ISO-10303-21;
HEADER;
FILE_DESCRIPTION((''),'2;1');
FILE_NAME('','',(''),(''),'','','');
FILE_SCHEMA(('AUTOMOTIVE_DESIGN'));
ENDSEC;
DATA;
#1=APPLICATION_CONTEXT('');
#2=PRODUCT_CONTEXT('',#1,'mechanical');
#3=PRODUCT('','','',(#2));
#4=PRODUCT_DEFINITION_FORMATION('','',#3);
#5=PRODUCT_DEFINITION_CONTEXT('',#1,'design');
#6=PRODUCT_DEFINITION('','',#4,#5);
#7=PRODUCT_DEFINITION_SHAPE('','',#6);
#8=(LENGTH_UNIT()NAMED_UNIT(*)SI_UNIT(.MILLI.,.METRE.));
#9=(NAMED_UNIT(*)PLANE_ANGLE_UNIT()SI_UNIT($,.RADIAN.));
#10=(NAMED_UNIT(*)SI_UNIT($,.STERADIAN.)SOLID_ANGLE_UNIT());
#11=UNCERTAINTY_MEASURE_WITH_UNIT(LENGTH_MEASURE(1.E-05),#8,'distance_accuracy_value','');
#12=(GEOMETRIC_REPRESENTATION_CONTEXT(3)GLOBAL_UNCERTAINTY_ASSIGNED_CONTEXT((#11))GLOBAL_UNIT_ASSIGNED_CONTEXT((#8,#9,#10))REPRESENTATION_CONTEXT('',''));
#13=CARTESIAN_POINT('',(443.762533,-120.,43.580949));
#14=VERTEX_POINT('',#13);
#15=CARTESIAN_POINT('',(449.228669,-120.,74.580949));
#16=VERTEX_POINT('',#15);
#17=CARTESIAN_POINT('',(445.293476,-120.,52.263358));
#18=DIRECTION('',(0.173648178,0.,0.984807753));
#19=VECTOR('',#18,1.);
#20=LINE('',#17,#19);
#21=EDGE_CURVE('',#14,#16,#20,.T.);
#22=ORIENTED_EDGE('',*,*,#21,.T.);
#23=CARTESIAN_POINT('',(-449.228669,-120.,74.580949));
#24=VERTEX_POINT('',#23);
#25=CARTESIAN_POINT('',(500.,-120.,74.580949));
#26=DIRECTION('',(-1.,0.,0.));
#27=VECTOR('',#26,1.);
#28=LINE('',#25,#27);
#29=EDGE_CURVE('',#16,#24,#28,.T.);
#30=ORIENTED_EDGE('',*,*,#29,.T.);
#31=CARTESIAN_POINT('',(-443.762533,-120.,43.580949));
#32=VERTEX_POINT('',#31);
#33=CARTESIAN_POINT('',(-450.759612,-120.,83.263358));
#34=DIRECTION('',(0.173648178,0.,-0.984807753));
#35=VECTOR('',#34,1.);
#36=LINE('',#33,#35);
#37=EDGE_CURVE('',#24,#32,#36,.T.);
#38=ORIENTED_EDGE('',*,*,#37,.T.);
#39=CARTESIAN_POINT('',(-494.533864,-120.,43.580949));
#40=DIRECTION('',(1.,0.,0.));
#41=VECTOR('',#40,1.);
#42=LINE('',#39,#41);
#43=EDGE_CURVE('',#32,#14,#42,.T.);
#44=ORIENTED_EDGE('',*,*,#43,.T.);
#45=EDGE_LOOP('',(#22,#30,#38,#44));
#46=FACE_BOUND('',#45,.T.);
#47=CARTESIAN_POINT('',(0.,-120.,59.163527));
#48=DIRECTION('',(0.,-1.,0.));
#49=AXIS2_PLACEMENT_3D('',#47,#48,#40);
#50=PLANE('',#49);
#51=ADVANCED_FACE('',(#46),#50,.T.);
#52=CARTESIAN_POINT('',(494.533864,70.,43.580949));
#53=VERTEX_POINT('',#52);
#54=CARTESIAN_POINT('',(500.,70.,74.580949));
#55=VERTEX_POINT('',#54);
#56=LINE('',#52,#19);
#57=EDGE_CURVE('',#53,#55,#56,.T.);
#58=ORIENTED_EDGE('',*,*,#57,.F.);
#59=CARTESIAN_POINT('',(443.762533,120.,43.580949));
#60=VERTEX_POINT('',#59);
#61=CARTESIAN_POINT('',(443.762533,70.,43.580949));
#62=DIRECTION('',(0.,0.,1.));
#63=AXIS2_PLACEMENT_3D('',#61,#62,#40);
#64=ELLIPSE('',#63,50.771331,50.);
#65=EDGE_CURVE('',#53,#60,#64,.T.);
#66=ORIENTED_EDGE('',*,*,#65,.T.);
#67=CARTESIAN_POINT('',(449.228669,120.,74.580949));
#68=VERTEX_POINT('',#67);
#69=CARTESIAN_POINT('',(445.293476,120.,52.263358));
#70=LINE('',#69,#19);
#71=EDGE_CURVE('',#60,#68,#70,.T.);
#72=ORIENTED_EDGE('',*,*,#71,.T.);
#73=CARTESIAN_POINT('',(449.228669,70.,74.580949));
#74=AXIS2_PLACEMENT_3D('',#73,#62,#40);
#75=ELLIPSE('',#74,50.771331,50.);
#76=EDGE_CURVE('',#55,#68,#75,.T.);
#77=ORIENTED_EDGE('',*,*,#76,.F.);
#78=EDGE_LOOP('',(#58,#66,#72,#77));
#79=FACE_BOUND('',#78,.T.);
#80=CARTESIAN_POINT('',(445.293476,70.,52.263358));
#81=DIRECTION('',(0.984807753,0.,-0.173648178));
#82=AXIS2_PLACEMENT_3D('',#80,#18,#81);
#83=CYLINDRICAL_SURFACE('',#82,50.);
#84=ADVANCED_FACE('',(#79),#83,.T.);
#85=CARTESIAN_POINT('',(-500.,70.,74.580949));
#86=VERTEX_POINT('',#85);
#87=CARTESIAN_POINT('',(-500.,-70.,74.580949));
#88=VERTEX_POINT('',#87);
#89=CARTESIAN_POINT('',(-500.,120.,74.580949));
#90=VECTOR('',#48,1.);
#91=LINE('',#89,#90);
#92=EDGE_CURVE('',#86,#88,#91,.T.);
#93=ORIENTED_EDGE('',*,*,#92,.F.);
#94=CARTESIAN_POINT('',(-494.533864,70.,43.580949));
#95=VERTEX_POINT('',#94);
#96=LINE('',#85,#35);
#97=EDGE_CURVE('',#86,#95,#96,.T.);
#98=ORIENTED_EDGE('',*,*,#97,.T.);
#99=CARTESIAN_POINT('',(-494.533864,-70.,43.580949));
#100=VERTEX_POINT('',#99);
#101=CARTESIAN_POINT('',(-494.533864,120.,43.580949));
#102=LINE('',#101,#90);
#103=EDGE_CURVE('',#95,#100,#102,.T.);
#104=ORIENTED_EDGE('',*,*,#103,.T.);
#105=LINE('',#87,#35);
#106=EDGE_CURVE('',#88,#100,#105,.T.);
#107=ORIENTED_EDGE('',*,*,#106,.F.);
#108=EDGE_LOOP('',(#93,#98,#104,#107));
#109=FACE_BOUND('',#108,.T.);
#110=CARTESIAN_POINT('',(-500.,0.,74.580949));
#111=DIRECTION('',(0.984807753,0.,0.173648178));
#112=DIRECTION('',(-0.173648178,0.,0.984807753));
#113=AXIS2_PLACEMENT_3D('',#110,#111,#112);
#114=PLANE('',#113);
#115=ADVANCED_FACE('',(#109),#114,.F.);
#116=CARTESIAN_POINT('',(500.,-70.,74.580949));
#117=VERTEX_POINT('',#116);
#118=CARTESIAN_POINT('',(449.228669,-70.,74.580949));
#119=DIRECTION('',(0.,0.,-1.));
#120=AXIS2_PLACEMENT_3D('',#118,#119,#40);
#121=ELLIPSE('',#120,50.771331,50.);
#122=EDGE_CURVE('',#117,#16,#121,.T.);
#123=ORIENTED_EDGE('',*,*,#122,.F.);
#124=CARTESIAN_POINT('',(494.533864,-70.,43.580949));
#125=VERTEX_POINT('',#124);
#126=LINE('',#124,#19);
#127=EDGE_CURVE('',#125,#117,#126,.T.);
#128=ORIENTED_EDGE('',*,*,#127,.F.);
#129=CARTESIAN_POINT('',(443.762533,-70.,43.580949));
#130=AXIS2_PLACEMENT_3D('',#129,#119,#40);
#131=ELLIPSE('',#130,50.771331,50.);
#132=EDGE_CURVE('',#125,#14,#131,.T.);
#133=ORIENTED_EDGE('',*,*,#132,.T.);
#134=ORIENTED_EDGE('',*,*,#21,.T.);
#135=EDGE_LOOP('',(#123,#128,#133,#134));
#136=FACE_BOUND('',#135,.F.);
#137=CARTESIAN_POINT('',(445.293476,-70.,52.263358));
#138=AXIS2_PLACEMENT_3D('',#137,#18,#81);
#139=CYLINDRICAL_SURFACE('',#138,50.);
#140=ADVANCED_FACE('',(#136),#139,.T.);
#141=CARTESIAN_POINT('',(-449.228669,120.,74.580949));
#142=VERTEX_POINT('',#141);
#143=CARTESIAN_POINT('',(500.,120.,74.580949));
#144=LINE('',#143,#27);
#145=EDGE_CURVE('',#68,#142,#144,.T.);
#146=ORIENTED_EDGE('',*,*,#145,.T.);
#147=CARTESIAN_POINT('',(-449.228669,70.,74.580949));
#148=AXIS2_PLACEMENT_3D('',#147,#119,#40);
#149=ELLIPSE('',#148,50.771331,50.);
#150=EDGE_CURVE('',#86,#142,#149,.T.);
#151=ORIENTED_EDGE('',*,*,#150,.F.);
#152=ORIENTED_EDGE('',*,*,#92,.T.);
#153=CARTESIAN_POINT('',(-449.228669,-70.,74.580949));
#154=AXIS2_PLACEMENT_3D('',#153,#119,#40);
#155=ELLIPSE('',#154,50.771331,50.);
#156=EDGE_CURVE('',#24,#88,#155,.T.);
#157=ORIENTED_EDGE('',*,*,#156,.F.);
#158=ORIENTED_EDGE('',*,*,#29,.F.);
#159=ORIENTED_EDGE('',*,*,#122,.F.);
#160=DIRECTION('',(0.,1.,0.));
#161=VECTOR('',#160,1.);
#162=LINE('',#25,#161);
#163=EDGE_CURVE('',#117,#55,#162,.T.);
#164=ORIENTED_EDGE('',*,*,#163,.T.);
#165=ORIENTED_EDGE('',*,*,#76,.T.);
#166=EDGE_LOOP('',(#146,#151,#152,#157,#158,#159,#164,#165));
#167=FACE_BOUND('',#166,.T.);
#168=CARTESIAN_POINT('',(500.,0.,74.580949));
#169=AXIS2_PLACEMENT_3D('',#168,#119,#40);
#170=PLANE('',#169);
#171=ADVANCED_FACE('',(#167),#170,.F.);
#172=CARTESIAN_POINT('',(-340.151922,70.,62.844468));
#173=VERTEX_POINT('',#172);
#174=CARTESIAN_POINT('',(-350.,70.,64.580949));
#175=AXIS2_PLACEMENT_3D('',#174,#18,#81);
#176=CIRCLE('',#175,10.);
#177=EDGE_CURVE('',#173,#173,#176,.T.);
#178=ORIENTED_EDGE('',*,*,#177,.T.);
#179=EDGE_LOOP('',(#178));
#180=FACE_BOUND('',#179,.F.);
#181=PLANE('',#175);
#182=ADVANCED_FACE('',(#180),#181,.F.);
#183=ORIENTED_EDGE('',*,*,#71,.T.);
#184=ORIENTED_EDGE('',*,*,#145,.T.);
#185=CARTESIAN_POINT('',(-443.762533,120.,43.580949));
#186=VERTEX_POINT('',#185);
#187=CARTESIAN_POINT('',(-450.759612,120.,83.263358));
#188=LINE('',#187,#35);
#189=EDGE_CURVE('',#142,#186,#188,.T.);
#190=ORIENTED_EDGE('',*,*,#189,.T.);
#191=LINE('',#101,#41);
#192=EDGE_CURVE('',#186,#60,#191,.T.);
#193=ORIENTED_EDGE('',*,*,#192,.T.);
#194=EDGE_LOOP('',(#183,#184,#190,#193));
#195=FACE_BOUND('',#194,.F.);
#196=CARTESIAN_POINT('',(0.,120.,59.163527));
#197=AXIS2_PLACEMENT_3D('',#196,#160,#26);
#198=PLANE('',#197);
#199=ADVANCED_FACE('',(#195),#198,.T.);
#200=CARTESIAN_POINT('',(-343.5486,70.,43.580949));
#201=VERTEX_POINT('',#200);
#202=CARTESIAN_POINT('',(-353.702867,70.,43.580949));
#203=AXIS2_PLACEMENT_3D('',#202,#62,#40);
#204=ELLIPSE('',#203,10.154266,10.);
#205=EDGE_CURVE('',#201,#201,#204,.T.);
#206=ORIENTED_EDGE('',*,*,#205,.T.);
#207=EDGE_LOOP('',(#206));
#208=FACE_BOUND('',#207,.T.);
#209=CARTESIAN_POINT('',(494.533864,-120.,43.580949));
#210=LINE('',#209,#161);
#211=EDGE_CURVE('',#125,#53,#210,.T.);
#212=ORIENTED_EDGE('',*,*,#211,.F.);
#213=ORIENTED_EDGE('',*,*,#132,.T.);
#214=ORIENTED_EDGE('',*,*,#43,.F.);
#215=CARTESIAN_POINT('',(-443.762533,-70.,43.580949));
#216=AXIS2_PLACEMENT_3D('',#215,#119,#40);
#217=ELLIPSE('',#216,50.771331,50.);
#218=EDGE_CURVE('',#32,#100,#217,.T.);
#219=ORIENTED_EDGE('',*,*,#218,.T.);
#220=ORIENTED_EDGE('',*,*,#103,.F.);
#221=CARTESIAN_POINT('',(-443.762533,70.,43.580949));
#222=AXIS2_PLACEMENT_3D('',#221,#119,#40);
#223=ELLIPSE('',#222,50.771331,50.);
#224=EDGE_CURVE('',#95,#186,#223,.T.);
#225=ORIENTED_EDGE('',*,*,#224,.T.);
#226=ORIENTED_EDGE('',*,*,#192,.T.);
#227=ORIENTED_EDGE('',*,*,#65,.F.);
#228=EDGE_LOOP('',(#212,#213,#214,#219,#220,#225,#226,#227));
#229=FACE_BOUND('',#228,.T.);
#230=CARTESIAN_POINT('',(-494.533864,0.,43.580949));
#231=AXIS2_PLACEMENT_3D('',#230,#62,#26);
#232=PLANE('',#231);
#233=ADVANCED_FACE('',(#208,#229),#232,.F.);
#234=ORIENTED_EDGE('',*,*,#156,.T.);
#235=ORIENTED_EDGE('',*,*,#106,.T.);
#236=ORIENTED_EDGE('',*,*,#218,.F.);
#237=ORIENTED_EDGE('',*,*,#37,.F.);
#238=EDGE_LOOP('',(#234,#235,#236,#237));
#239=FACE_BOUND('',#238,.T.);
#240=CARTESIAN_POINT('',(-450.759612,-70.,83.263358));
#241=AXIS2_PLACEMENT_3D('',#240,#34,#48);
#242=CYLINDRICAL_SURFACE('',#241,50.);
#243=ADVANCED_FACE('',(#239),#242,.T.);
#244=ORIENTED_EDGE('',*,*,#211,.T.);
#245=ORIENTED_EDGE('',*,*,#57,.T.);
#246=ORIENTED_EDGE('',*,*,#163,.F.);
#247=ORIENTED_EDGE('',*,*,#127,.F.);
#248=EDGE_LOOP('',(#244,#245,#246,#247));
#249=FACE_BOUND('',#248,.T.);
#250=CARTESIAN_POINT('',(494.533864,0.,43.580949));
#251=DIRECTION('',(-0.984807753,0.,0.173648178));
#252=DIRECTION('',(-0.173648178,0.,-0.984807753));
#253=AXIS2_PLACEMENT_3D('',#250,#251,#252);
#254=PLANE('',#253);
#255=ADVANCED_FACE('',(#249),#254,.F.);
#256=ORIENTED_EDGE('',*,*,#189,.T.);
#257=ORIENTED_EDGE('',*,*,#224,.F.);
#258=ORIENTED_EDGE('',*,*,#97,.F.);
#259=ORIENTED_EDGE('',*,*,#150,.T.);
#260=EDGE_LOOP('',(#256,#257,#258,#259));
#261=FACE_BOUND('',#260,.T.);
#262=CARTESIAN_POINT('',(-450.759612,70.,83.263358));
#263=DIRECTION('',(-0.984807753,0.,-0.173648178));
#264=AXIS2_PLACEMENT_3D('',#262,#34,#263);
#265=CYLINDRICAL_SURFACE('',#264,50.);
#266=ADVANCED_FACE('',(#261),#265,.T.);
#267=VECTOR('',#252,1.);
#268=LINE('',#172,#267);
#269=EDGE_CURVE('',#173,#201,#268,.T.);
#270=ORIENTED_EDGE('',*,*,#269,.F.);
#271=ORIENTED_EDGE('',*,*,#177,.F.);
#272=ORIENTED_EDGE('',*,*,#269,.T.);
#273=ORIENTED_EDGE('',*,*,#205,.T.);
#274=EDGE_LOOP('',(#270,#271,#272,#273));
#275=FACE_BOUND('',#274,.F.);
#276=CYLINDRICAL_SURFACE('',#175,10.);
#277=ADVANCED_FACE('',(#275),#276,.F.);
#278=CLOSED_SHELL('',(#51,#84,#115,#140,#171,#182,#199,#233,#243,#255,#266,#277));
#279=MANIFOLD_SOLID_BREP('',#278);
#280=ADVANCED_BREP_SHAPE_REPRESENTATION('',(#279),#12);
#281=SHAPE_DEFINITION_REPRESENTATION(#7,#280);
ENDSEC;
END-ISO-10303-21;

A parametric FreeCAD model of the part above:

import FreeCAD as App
import Part
import Sketcher
Q = App.Units.Quantity


def edges_at(feature, points):
    """Names of the edges that pass closest to the given points."""
    edges = feature.Shape.Edges
    near = lambda p: min(range(len(edges)), key=lambda i: edges[i].distToShape(Part.Vertex(*p))[0])
    return sorted({f"Edge{near(p) + 1}" for p in points})

doc = App.newDocument("Part")
body = doc.addObject("PartDesign::Body", "Body")

# Sketch on XZ plane
sketch1 = body.newObject("Sketcher::SketchObject", "Sketch")
sketch1.AttachmentSupport = (doc.getObject("XZ_Plane"), [""])
sketch1.MapMode = "FlatFace"
sketch1.addGeometry([
    Part.LineSegment(App.Vector(500, 75, 0), App.Vector(-500, 75, 0)),
    Part.LineSegment(App.Vector(-500, 75, 0), App.Vector(-495, 44, 0)),
    Part.LineSegment(App.Vector(-495, 44, 0), App.Vector(495, 44, 0)),
    Part.LineSegment(App.Vector(495, 44, 0), App.Vector(500, 75, 0)),
], False)
sketch1.addConstraint([
    Sketcher.Constraint("Coincident", 0, 2, 1, 1),
    Sketcher.Constraint("Coincident", 1, 2, 2, 1),
    Sketcher.Constraint("Coincident", 2, 2, 3, 1),
    Sketcher.Constraint("Coincident", 3, 2, 0, 1),
    Sketcher.Constraint("Horizontal", 0),
    Sketcher.Constraint("Horizontal", 2),
    Sketcher.Constraint("Equal", 1, 3),
    Sketcher.Constraint("DistanceX", 0, 2, 0, 1, Q("1000 mm")),
    Sketcher.Constraint("Angle", 1, Q("-80 deg")),
    Sketcher.Constraint("DistanceX", 0, 2, -1, 1, Q("500 mm")),
    Sketcher.Constraint("DistanceY", 1, 2, 0, 2, Q("31 mm")),
    Sketcher.Constraint("DistanceY", -1, 1, 0, 2, Q("74.580949 mm")),
])
pad1 = body.newObject("PartDesign::Pad", "Pad")
pad1.Profile = sketch1
pad1.Length = 120
body2 = doc.addObject("PartDesign::Body", "Body001")
doc.recompute()

body2.BaseFeature = body
doc.recompute()

mirroring = doc.addObject("Part::Mirroring", "Mirroring")
mirroring.Source = body
mirroring.Base = App.Vector(0, 0, 0)
mirroring.Normal = App.Vector(0, -1, 0)
body3 = doc.addObject("PartDesign::Body", "Body002")
body3.BaseFeature = mirroring
boolean = body2.newObject("PartDesign::Boolean", "Boolean")
boolean.Type = "Fuse"
boolean.addObjects([body3])
doc.recompute()

fillet = body2.newObject("PartDesign::Fillet", "Fillet")
fillet.Base = (boolean, edges_at(boolean, [(497.267, -120, 59.081)]))
fillet.Radius = 50
doc.recompute()

fillet2 = body2.newObject("PartDesign::Fillet", "Fillet001")
fillet2.Base = (fillet, edges_at(fillet, [(497.267, 120, 59.081)]))
fillet2.Radius = 50
doc.recompute()

fillet3 = body2.newObject("PartDesign::Fillet", "Fillet002")
fillet3.Base = (fillet2, edges_at(fillet2, [(-497.267, -120, 59.081)]))
fillet3.Radius = 50
doc.recompute()

fillet4 = body2.newObject("PartDesign::Fillet", "Fillet003")
fillet4.Base = (fillet3, edges_at(fillet3, [(-497.267, 120, 59.081)]))
fillet4.Radius = 50

# Sketch on an angled plane
sketch2 = body2.newObject("Sketcher::SketchObject", "Sketch001")
sketch2.Placement = App.Placement(App.Vector(0.490201, 0, 2.78007), App.Rotation(App.Vector(0.984807753, 0, -0.173648178), App.Vector(0, 1, 0), App.Vector(0.173648178, 0, 0.984807753), "ZXY"))
sketch2.addGeometry(Part.Circle(App.Vector(-356, 70, 0), App.Vector(0, 0, 1), 10), False)
sketch2.addConstraint([
    Sketcher.Constraint("Diameter", 0, Q("20 mm")),
    Sketcher.Constraint("DistanceY", -1, 1, 0, 3, Q("70 mm")),
    Sketcher.Constraint("DistanceX", 0, 3, -1, 1, Q("355.897078 mm")),
])
pocket1 = body2.newObject("PartDesign::Pocket", "Pocket")
pocket1.Profile = sketch2
pocket1.Type = "ThroughAll"
mirroring.Visibility = False

doc.recompute()
